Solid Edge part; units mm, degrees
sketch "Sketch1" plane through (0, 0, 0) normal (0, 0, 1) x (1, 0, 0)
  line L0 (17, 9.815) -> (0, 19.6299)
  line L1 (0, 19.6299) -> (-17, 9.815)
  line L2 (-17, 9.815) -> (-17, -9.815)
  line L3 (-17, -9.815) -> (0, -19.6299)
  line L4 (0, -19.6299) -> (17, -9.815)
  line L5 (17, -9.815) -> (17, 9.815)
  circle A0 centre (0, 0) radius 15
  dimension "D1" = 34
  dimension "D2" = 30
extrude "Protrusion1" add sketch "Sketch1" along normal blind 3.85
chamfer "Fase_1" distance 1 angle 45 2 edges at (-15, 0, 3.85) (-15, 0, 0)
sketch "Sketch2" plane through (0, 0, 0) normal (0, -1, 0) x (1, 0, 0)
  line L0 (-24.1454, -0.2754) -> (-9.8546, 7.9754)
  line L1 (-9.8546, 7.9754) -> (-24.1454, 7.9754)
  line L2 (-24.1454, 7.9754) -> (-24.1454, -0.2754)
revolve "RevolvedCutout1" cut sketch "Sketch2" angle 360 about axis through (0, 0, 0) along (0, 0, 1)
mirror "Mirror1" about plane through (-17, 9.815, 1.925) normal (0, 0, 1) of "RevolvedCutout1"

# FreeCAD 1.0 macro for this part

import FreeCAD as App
import Part
import Sketcher

V = App.Vector
Q = App.Units.Quantity


def edges_at(feature, points):
    """Names of the edges that pass closest to the given points."""
    edges = feature.Shape.Edges
    near = lambda p: min(range(len(edges)), key=lambda i: edges[i].distToShape(Part.Vertex(*p))[0])
    return sorted({f"Edge{near(p) + 1}" for p in points})


def add_polygon(sketch, points):
    """Adds a closed chain of lines whose ends are joined by coincident constraints."""
    first, n = sketch.GeometryCount, len(points)
    for a, b in zip(points, points[1:] + points[:1]):
        sketch.addGeometry(Part.LineSegment(App.Vector(*a, 0), App.Vector(*b, 0)), False)
    for i in range(n):
        sketch.addConstraint(Sketcher.Constraint("Coincident", first + i, 2, first + (i + 1) % n, 1))

doc = App.newDocument("Part")
body = doc.addObject("PartDesign::Body", "Body")

# Sketch on XY plane
sketch1 = body.newObject("Sketcher::SketchObject", "Sketch")
sketch1.AttachmentSupport = (doc.getObject("XY_Plane"), [""])
sketch1.MapMode = "FlatFace"
add_polygon(sketch1, [(17, -10), (17, 10), (0, 20), (-17, 10), (-17, -10), (0, -20)])  # lines 0-5
sketch1.addGeometry(Part.Circle(V(0, 0, 0), V(0, 0, 1), 15), False)  # 6
sketch1.addConstraint(Sketcher.Constraint("Vertical", 0))
sketch1.addConstraint(Sketcher.Constraint("Vertical", 3))
sketch1.addConstraint(Sketcher.Constraint("Coincident", 6, 3, -1, 1))
sketch1.addConstraint(Sketcher.Constraint("Symmetric", 0, 2, 3, 2, -1, 1))
sketch1.addConstraint(Sketcher.Constraint("Symmetric", 1, 2, 4, 2, -1, 1))
sketch1.addConstraint(Sketcher.Constraint("PointOnObject", 1, 2, -2))
sketch1.addConstraint(Sketcher.Constraint("Parallel", 2, 5))
sketch1.addConstraint(Sketcher.Constraint("Horizontal", 0, 2, 2, 2))
sketch1.addConstraint(Sketcher.Constraint("Diameter", 6, 30.0))
sketch1.addConstraint(Sketcher.Constraint("Angle", 1, Q("150.0001 deg")))
sketch1.addConstraint(Sketcher.Constraint("DistanceX", -1, 1, 0, 2, 17.0))
sketch1.addConstraint(Sketcher.Constraint("DistanceY", 0, 1, 0, 2, 19.63))
pad1 = body.newObject("PartDesign::Pad", "Pad")
pad1.Profile = sketch1
pad1.Length = 3.85
doc.recompute()

chamfer = body.newObject("PartDesign::Chamfer", "Chamfer")
chamfer.Base = (pad1, edges_at(pad1, [(-15, 0, 3.85), (-15, 0, 0)]))
chamfer.Size = 1

# Sketch on XZ plane
sketch2 = body.newObject("Sketcher::SketchObject", "Sketch001")
sketch2.AttachmentSupport = (doc.getObject("XZ_Plane"), [""])
sketch2.MapMode = "FlatFace"
add_polygon(sketch2, [(-24, 8), (-24, 0), (-10, 8)])  # lines 0-2
sketch2.addConstraint(Sketcher.Constraint("Vertical", 0))
sketch2.addConstraint(Sketcher.Constraint("Horizontal", 2))
sketch2.addConstraint(Sketcher.Constraint("Angle", 1, Q("30 deg")))
sketch2.addConstraint(Sketcher.Constraint("DistanceX", 2, 2, 2, 1, 14.2908))
sketch2.addConstraint(Sketcher.Constraint("DistanceX", 0, 2, -1, 1, 24.1454))
sketch2.addConstraint(Sketcher.Constraint("DistanceY", 0, 2, -1, 1, 0.2754))
groove = body.newObject("PartDesign::Groove", "Groove")
groove.Profile = sketch2
groove.ReferenceAxis = (sketch2, ["V_Axis"])
groove.Angle = 360
doc.recompute()

datumplane = body.newObject("PartDesign::Plane", "DatumPlane")
datumplane.AttachmentSupport = (doc.getObject("XY_Plane"), [""])
datumplane.MapMode = "FlatFace"
datumplane.AttachmentOffset = App.Placement(V(0, 0, 1.925), App.Rotation())
mirrored = body.newObject("PartDesign::Mirrored", "Mirrored")
mirrored.Originals = [groove]
mirrored.MirrorPlane = (datumplane, [""])
body.Tip = mirrored

doc.recompute()
